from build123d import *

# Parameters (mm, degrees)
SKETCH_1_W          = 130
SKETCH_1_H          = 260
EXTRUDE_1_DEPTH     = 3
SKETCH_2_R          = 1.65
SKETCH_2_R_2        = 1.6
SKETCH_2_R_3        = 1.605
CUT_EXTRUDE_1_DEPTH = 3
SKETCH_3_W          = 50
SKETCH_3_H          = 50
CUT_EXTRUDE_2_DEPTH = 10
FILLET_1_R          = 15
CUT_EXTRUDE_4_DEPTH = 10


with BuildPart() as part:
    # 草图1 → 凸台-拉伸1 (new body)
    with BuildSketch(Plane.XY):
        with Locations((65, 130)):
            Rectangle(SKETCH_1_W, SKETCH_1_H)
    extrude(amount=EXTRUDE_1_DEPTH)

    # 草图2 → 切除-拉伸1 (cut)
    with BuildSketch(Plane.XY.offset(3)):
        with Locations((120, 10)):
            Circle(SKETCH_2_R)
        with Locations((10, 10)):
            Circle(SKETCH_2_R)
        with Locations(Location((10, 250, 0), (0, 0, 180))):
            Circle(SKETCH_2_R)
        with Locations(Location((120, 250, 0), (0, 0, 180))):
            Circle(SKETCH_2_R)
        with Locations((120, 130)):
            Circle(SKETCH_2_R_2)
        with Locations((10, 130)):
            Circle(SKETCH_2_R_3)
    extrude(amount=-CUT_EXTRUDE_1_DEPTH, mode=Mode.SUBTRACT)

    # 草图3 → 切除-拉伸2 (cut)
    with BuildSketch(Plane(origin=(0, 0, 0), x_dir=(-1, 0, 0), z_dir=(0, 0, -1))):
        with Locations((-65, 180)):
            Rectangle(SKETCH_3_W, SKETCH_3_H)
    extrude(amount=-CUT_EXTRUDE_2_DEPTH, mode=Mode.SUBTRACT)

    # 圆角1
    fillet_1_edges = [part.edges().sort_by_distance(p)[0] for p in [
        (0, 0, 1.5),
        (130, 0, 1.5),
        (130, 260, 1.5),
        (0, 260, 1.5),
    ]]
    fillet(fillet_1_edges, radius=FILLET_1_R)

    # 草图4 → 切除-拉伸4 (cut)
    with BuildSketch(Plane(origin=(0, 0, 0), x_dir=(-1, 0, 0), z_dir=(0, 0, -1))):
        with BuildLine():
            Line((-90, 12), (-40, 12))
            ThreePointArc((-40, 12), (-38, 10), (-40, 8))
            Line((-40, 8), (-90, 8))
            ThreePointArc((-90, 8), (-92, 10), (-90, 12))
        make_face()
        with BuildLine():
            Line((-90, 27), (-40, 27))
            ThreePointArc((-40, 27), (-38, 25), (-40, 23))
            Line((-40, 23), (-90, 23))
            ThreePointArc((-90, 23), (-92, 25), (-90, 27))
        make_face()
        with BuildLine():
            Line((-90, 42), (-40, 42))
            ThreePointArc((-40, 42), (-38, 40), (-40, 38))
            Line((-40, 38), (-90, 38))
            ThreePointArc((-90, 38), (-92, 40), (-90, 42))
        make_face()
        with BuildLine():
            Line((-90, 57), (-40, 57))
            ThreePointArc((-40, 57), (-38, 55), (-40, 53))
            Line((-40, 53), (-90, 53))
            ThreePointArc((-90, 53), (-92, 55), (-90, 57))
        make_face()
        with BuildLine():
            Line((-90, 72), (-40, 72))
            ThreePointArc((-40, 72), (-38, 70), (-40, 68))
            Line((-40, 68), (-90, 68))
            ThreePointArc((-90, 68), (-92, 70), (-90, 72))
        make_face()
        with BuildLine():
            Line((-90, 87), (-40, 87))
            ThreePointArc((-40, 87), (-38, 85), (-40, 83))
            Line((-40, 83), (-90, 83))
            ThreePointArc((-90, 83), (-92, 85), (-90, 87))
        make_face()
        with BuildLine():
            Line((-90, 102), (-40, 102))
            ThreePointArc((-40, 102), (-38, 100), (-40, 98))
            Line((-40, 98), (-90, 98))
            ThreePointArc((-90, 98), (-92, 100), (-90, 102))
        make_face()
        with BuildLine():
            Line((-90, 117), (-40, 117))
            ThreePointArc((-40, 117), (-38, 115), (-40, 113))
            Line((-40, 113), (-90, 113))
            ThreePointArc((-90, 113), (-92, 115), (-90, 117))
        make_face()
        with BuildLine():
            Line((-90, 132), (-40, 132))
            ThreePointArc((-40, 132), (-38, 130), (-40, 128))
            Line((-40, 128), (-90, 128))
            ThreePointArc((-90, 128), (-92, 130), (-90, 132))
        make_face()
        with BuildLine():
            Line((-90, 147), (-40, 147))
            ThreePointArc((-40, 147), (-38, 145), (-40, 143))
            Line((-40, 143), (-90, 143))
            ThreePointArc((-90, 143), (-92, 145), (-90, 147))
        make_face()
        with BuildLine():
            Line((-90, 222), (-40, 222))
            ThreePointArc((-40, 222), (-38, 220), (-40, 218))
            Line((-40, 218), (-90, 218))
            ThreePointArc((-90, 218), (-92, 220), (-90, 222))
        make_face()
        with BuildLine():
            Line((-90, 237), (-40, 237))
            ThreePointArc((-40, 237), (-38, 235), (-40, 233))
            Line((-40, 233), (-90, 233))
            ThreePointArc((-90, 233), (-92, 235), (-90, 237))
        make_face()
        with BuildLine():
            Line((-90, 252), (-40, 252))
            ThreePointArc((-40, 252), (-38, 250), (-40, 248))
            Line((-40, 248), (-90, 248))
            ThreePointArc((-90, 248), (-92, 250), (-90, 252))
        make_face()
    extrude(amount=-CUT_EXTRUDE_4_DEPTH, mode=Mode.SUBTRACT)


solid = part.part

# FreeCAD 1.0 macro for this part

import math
import FreeCAD as App
import Part
import Sketcher
from FreeCAD import Vector
Q = App.Units.Quantity


def edges_at(feature, points):
    """Names of the edges that pass closest to the given points."""
    edges = feature.Shape.Edges
    near = lambda p: min(range(len(edges)), key=lambda i: edges[i].distToShape(Part.Vertex(*p))[0])
    return sorted({f"Edge{near(p) + 1}" for p in points})

doc = App.newDocument("Part")
body = doc.addObject("PartDesign::Body", "Body")

# Sketch on XY plane
sketch1 = body.newObject("Sketcher::SketchObject", "Sketch")
sketch1.AttachmentSupport = (doc.getObject("XY_Plane"), [""])
sketch1.MapMode = "FlatFace"
sketch1.addGeometry([
    Part.LineSegment(Vector(0, 260, 0), Vector(0, 0, 0)),
    Part.LineSegment(Vector(0, 0, 0), Vector(130, 0, 0)),
    Part.LineSegment(Vector(130, 0, 0), Vector(130, 260, 0)),
    Part.LineSegment(Vector(130, 260, 0), Vector(0, 260, 0)),
], False)
sketch1.addConstraint([
    Sketcher.Constraint("Coincident", 0, 2, 1, 1),
    Sketcher.Constraint("Coincident", 1, 2, 2, 1),
    Sketcher.Constraint("Coincident", 2, 2, 3, 1),
    Sketcher.Constraint("Coincident", 3, 2, 0, 1),
    Sketcher.Constraint("Vertical", 0),
    Sketcher.Constraint("Horizontal", 1),
    Sketcher.Constraint("Vertical", 2),
    Sketcher.Constraint("Horizontal", 3),
    Sketcher.Constraint("Coincident", 0, 2, -1, 1),
    Sketcher.Constraint("DistanceX", 1, 1, 1, 2, Q("130 mm")),
    Sketcher.Constraint("DistanceY", 0, 2, 0, 1, Q("260 mm")),
])
pad1 = body.newObject("PartDesign::Pad", "Pad")
pad1.Profile = sketch1
pad1.Length = 3

# Sketch on XY plane
sketch2 = body.newObject("Sketcher::SketchObject", "Sketch001")
sketch2.AttachmentSupport = (doc.getObject("XY_Plane"), [""])
sketch2.MapMode = "FlatFace"
sketch2.AttachmentOffset = App.Placement(Vector(0, 0, 3), App.Rotation())
sketch2.addGeometry([
    Part.Circle(Vector(120, 10, 0), Vector(0, 0, 1), 1.6),  # 0
    Part.Circle(Vector(10, 10, 0), Vector(0, 0, 1), 1.6),  # 1
    Part.Circle(Vector(10, 250, 0), Vector(0, 0, 1), 1.6),  # 2
    Part.Circle(Vector(120, 250, 0), Vector(0, 0, 1), 1.6),  # 3
    Part.Circle(Vector(120, 130, 0), Vector(0, 0, 1), 1.6),  # 4
    Part.Circle(Vector(10, 130, 0), Vector(0, 0, 1), 1.6),  # 5
], False)
sketch2.addConstraint([
    Sketcher.Constraint("Equal", 0, 1),
    Sketcher.Constraint("Equal", 1, 2),
    Sketcher.Constraint("Equal", 2, 3),
    Sketcher.Constraint("Horizontal", 0, 3, 1, 3),
    Sketcher.Constraint("Horizontal", 2, 3, 3, 3),
    Sketcher.Constraint("Horizontal", 4, 3, 5, 3),
    Sketcher.Constraint("Vertical", 1, 3, 2, 3),
    Sketcher.Constraint("Vertical", 0, 3, 3, 3),
    Sketcher.Constraint("Vertical", 3, 3, 4, 3),
    Sketcher.Constraint("Vertical", 2, 3, 5, 3),
    Sketcher.Constraint("Diameter", 0, Q("3.3 mm")),
    Sketcher.Constraint("Diameter", 4, Q("3.2 mm")),
    Sketcher.Constraint("Diameter", 5, Q("3.21 mm")),
    Sketcher.Constraint("DistanceX", -1, 1, 0, 3, Q("120 mm")),
    Sketcher.Constraint("DistanceY", -1, 1, 0, 3, Q("10 mm")),
    Sketcher.Constraint("DistanceX", -1, 1, 1, 3, Q("10 mm")),
    Sketcher.Constraint("DistanceY", -1, 1, 2, 3, Q("250 mm")),
    Sketcher.Constraint("DistanceY", -1, 1, 4, 3, Q("130 mm")),
])
pocket1 = body.newObject("PartDesign::Pocket", "Pocket")
pocket1.Profile = sketch2
pocket1.Length = 3

# Sketch on XY plane
sketch3 = body.newObject("Sketcher::SketchObject", "Sketch002")
sketch3.AttachmentSupport = (doc.getObject("XY_Plane"), [""])
sketch3.MapMode = "FlatFace"
sketch3.addGeometry([
    Part.LineSegment(Vector(90, 205, 0), Vector(90, 155, 0)),
    Part.LineSegment(Vector(90, 155, 0), Vector(40, 155, 0)),
    Part.LineSegment(Vector(40, 155, 0), Vector(40, 205, 0)),
    Part.LineSegment(Vector(40, 205, 0), Vector(90, 205, 0)),
], False)
sketch3.addConstraint([
    Sketcher.Constraint("Coincident", 0, 2, 1, 1),
    Sketcher.Constraint("Coincident", 1, 2, 2, 1),
    Sketcher.Constraint("Coincident", 2, 2, 3, 1),
    Sketcher.Constraint("Coincident", 3, 2, 0, 1),
    Sketcher.Constraint("Vertical", 0),
    Sketcher.Constraint("Horizontal", 1),
    Sketcher.Constraint("Vertical", 2),
    Sketcher.Constraint("Horizontal", 3),
    Sketcher.Constraint("Equal", 3, 0),
    Sketcher.Constraint("DistanceX", 1, 2, 1, 1, Q("50 mm")),
    Sketcher.Constraint("DistanceX", -1, 1, 0, 2, Q("90 mm")),
    Sketcher.Constraint("DistanceY", -1, 1, 0, 2, Q("155 mm")),
])
pocket2 = body.newObject("PartDesign::Pocket", "Pocket001")
pocket2.Profile = sketch3
pocket2.Length = 10
pocket2.Reversed = True
doc.recompute()

fillet = body.newObject("PartDesign::Fillet", "Fillet")
fillet.Base = (pocket2, edges_at(pocket2, [
    (0, 0, 1.5),
    (130, 0, 1.5),
    (130, 260, 1.5),
    (0, 260, 1.5),
]))
fillet.Radius = 15

# Sketch on XY plane
sketch4 = body.newObject("Sketcher::SketchObject", "Sketch003")
sketch4.AttachmentSupport = (doc.getObject("XY_Plane"), [""])
sketch4.MapMode = "FlatFace"
sketch4.addGeometry([
    Part.LineSegment(Vector(40, 12, 0), Vector(90, 12, 0)),  # 0
    Part.ArcOfCircle(Part.Circle(Vector(90, 10, 0), Vector(0, 0, 1), 2), math.radians(-90), math.radians(90)),  # 1
    Part.LineSegment(Vector(90, 8, 0), Vector(40, 8, 0)),  # 2
    Part.ArcOfCircle(Part.Circle(Vector(40, 10, 0), Vector(0, 0, 1), 2), math.radians(90), math.radians(270)),  # 3
    Part.LineSegment(Vector(40, 27, 0), Vector(90, 27, 0)),  # 4
    Part.ArcOfCircle(Part.Circle(Vector(90, 25, 0), Vector(0, 0, 1), 2), math.radians(-90), math.radians(90)),  # 5
    Part.LineSegment(Vector(90, 23, 0), Vector(40, 23, 0)),  # 6
    Part.ArcOfCircle(Part.Circle(Vector(40, 25, 0), Vector(0, 0, 1), 2), math.radians(90), math.radians(270)),  # 7
    Part.LineSegment(Vector(40, 42, 0), Vector(90, 42, 0)),  # 8
    Part.ArcOfCircle(Part.Circle(Vector(90, 40, 0), Vector(0, 0, 1), 2), math.radians(-90), math.radians(90)),  # 9
    Part.LineSegment(Vector(90, 38, 0), Vector(40, 38, 0)),  # 10
    Part.ArcOfCircle(Part.Circle(Vector(40, 40, 0), Vector(0, 0, 1), 2), math.radians(90), math.radians(270)),  # 11
    Part.LineSegment(Vector(40, 57, 0), Vector(90, 57, 0)),  # 12
    Part.ArcOfCircle(Part.Circle(Vector(90, 55, 0), Vector(0, 0, 1), 2), math.radians(-90), math.radians(90)),  # 13
    Part.LineSegment(Vector(90, 53, 0), Vector(40, 53, 0)),  # 14
    Part.ArcOfCircle(Part.Circle(Vector(40, 55, 0), Vector(0, 0, 1), 2), math.radians(90), math.radians(270)),  # 15
    Part.LineSegment(Vector(40, 72, 0), Vector(90, 72, 0)),  # 16
    Part.ArcOfCircle(Part.Circle(Vector(90, 70, 0), Vector(0, 0, 1), 2), math.radians(-90), math.radians(90)),  # 17
    Part.LineSegment(Vector(90, 68, 0), Vector(40, 68, 0)),  # 18
    Part.ArcOfCircle(Part.Circle(Vector(40, 70, 0), Vector(0, 0, 1), 2), math.radians(90), math.radians(270)),  # 19
    Part.LineSegment(Vector(40, 87, 0), Vector(90, 87, 0)),  # 20
    Part.ArcOfCircle(Part.Circle(Vector(90, 85, 0), Vector(0, 0, 1), 2), math.radians(-90), math.radians(90)),  # 21
    Part.LineSegment(Vector(90, 83, 0), Vector(40, 83, 0)),  # 22
    Part.ArcOfCircle(Part.Circle(Vector(40, 85, 0), Vector(0, 0, 1), 2), math.radians(90), math.radians(270)),  # 23
    Part.LineSegment(Vector(40, 102, 0), Vector(90, 102, 0)),  # 24
    Part.ArcOfCircle(Part.Circle(Vector(90, 100, 0), Vector(0, 0, 1), 2), math.radians(-90), math.radians(90)),  # 25
    Part.LineSegment(Vector(90, 98, 0), Vector(40, 98, 0)),  # 26
    Part.ArcOfCircle(Part.Circle(Vector(40, 100, 0), Vector(0, 0, 1), 2), math.radians(90), math.radians(270)),  # 27
    Part.LineSegment(Vector(40, 117, 0), Vector(90, 117, 0)),  # 28
    Part.ArcOfCircle(Part.Circle(Vector(90, 115, 0), Vector(0, 0, 1), 2), math.radians(-90), math.radians(90)),  # 29
    Part.LineSegment(Vector(90, 113, 0), Vector(40, 113, 0)),  # 30
    Part.ArcOfCircle(Part.Circle(Vector(40, 115, 0), Vector(0, 0, 1), 2), math.radians(90), math.radians(270)),  # 31
    Part.LineSegment(Vector(40, 132, 0), Vector(90, 132, 0)),  # 32
    Part.ArcOfCircle(Part.Circle(Vector(90, 130, 0), Vector(0, 0, 1), 2), math.radians(-90), math.radians(90)),  # 33
    Part.LineSegment(Vector(90, 128, 0), Vector(40, 128, 0)),  # 34
    Part.ArcOfCircle(Part.Circle(Vector(40, 130, 0), Vector(0, 0, 1), 2), math.radians(90), math.radians(270)),  # 35
    Part.LineSegment(Vector(40, 147, 0), Vector(90, 147, 0)),  # 36
    Part.ArcOfCircle(Part.Circle(Vector(90, 145, 0), Vector(0, 0, 1), 2), math.radians(-90), math.radians(90)),  # 37
    Part.LineSegment(Vector(90, 143, 0), Vector(40, 143, 0)),  # 38
    Part.ArcOfCircle(Part.Circle(Vector(40, 145, 0), Vector(0, 0, 1), 2), math.radians(90), math.radians(270)),  # 39
    Part.LineSegment(Vector(40, 222, 0), Vector(90, 222, 0)),  # 40
    Part.ArcOfCircle(Part.Circle(Vector(90, 220, 0), Vector(0, 0, 1), 2), math.radians(-90), math.radians(90)),  # 41
    Part.LineSegment(Vector(90, 218, 0), Vector(40, 218, 0)),  # 42
    Part.ArcOfCircle(Part.Circle(Vector(40, 220, 0), Vector(0, 0, 1), 2), math.radians(90), math.radians(270)),  # 43
    Part.LineSegment(Vector(40, 237, 0), Vector(90, 237, 0)),  # 44
    Part.ArcOfCircle(Part.Circle(Vector(90, 235, 0), Vector(0, 0, 1), 2), math.radians(-90), math.radians(90)),  # 45
    Part.LineSegment(Vector(90, 233, 0), Vector(40, 233, 0)),  # 46
    Part.ArcOfCircle(Part.Circle(Vector(40, 235, 0), Vector(0, 0, 1), 2), math.radians(90), math.radians(270)),  # 47
    Part.LineSegment(Vector(40, 252, 0), Vector(90, 252, 0)),  # 48
    Part.ArcOfCircle(Part.Circle(Vector(90, 250, 0), Vector(0, 0, 1), 2), math.radians(-90), math.radians(90)),  # 49
    Part.LineSegment(Vector(90, 248, 0), Vector(40, 248, 0)),  # 50
    Part.ArcOfCircle(Part.Circle(Vector(40, 250, 0), Vector(0, 0, 1), 2), math.radians(90), math.radians(270)),  # 51
], False)
sketch4.addConstraint([
    Sketcher.Constraint("Tangent", 0, 2, 1, 2),
    Sketcher.Constraint("Tangent", 1, 1, 2, 1),
    Sketcher.Constraint("Tangent", 2, 2, 3, 2),
    Sketcher.Constraint("Tangent", 3, 1, 0, 1),
    Sketcher.Constraint("Tangent", 4, 2, 5, 2),
    Sketcher.Constraint("Tangent", 5, 1, 6, 1),
    Sketcher.Constraint("Tangent", 6, 2, 7, 2),
    Sketcher.Constraint("Tangent", 7, 1, 4, 1),
    Sketcher.Constraint("Tangent", 8, 2, 9, 2),
    Sketcher.Constraint("Tangent", 9, 1, 10, 1),
    Sketcher.Constraint("Tangent", 10, 2, 11, 2),
    Sketcher.Constraint("Tangent", 11, 1, 8, 1),
    Sketcher.Constraint("Tangent", 12, 2, 13, 2),
    Sketcher.Constraint("Tangent", 13, 1, 14, 1),
    Sketcher.Constraint("Tangent", 14, 2, 15, 2),
    Sketcher.Constraint("Tangent", 15, 1, 12, 1),
    Sketcher.Constraint("Tangent", 16, 2, 17, 2),
    Sketcher.Constraint("Tangent", 17, 1, 18, 1),
    Sketcher.Constraint("Tangent", 18, 2, 19, 2),
    Sketcher.Constraint("Tangent", 19, 1, 16, 1),
    Sketcher.Constraint("Tangent", 20, 2, 21, 2),
    Sketcher.Constraint("Tangent", 21, 1, 22, 1),
    Sketcher.Constraint("Tangent", 22, 2, 23, 2),
    Sketcher.Constraint("Tangent", 23, 1, 20, 1),
    Sketcher.Constraint("Tangent", 24, 2, 25, 2),
    Sketcher.Constraint("Tangent", 25, 1, 26, 1),
    Sketcher.Constraint("Tangent", 26, 2, 27, 2),
    Sketcher.Constraint("Tangent", 27, 1, 24, 1),
    Sketcher.Constraint("Tangent", 28, 2, 29, 2),
    Sketcher.Constraint("Tangent", 29, 1, 30, 1),
    Sketcher.Constraint("Tangent", 30, 2, 31, 2),
    Sketcher.Constraint("Tangent", 31, 1, 28, 1),
    Sketcher.Constraint("Tangent", 32, 2, 33, 2),
    Sketcher.Constraint("Tangent", 33, 1, 34, 1),
    Sketcher.Constraint("Tangent", 34, 2, 35, 2),
    Sketcher.Constraint("Tangent", 35, 1, 32, 1),
    Sketcher.Constraint("Tangent", 36, 2, 37, 2),
    Sketcher.Constraint("Tangent", 37, 1, 38, 1),
    Sketcher.Constraint("Tangent", 38, 2, 39, 2),
    Sketcher.Constraint("Tangent", 39, 1, 36, 1),
    Sketcher.Constraint("Tangent", 40, 2, 41, 2),
    Sketcher.Constraint("Tangent", 41, 1, 42, 1),
    Sketcher.Constraint("Tangent", 42, 2, 43, 2),
    Sketcher.Constraint("Tangent", 43, 1, 40, 1),
    Sketcher.Constraint("Tangent", 44, 2, 45, 2),
    Sketcher.Constraint("Tangent", 45, 1, 46, 1),
    Sketcher.Constraint("Tangent", 46, 2, 47, 2),
    Sketcher.Constraint("Tangent", 47, 1, 44, 1),
    Sketcher.Constraint("Tangent", 48, 2, 49, 2),
    Sketcher.Constraint("Tangent", 49, 1, 50, 1),
    Sketcher.Constraint("Tangent", 50, 2, 51, 2),
    Sketcher.Constraint("Tangent", 51, 1, 48, 1),
    Sketcher.Constraint("Horizontal", 0),
    Sketcher.Constraint("Horizontal", 2),
    Sketcher.Constraint("Horizontal", 4),
    Sketcher.Constraint("Horizontal", 6),
    Sketcher.Constraint("Horizontal", 8),
    Sketcher.Constraint("Horizontal", 10),
    Sketcher.Constraint("Horizontal", 12),
    Sketcher.Constraint("Horizontal", 14),
    Sketcher.Constraint("Horizontal", 16),
    Sketcher.Constraint("Horizontal", 18),
    Sketcher.Constraint("Horizontal", 20),
    Sketcher.Constraint("Horizontal", 22),
    Sketcher.Constraint("Horizontal", 24),
    Sketcher.Constraint("Horizontal", 26),
    Sketcher.Constraint("Horizontal", 28),
    Sketcher.Constraint("Horizontal", 30),
    Sketcher.Constraint("Horizontal", 32),
    Sketcher.Constraint("Horizontal", 34),
    Sketcher.Constraint("Horizontal", 36),
    Sketcher.Constraint("Horizontal", 38),
    Sketcher.Constraint("Horizontal", 40),
    Sketcher.Constraint("Horizontal", 42),
    Sketcher.Constraint("Horizontal", 44),
    Sketcher.Constraint("Horizontal", 46),
    Sketcher.Constraint("Horizontal", 48),
    Sketcher.Constraint("Horizontal", 50),
    Sketcher.Constraint("Equal", 3, 5),
    Sketcher.Constraint("Equal", 7, 9),
    Sketcher.Constraint("Equal", 11, 13),
    Sketcher.Constraint("Equal", 15, 17),
    Sketcher.Constraint("Equal", 19, 21),
    Sketcher.Constraint("Equal", 23, 25),
    Sketcher.Constraint("Equal", 27, 29),
    Sketcher.Constraint("Equal", 31, 33),
    Sketcher.Constraint("Equal", 35, 37),
    Sketcher.Constraint("Equal", 39, 41),
    Sketcher.Constraint("Equal", 43, 45),
    Sketcher.Constraint("Equal", 47, 49),
    Sketcher.Constraint("Vertical", 1, 3, 5, 3),
    Sketcher.Constraint("Vertical", 3, 3, 7, 3),
    Sketcher.Constraint("Vertical", 5, 3, 9, 3),
    Sketcher.Constraint("Vertical", 7, 3, 11, 3),
    Sketcher.Constraint("Vertical", 9, 3, 13, 3),
    Sketcher.Constraint("Vertical", 11, 3, 15, 3),
    Sketcher.Constraint("Vertical", 13, 3, 17, 3),
    Sketcher.Constraint("Vertical", 15, 3, 19, 3),
    Sketcher.Constraint("Vertical", 17, 3, 21, 3),
    Sketcher.Constraint("Vertical", 19, 3, 23, 3),
    Sketcher.Constraint("Vertical", 21, 3, 25, 3),
    Sketcher.Constraint("Vertical", 23, 3, 27, 3),
    Sketcher.Constraint("Vertical", 25, 3, 29, 3),
    Sketcher.Constraint("Vertical", 27, 3, 31, 3),
    Sketcher.Constraint("Vertical", 29, 3, 33, 3),
    Sketcher.Constraint("Vertical", 31, 3, 35, 3),
    Sketcher.Constraint("Vertical", 33, 3, 37, 3),
    Sketcher.Constraint("Vertical", 35, 3, 39, 3),
    Sketcher.Constraint("Vertical", 37, 3, 41, 3),
    Sketcher.Constraint("Vertical", 39, 3, 43, 3),
    Sketcher.Constraint("Vertical", 41, 3, 45, 3),
    Sketcher.Constraint("Vertical", 43, 3, 47, 3),
    Sketcher.Constraint("Vertical", 45, 3, 49, 3),
    Sketcher.Constraint("Vertical", 47, 3, 51, 3),
    Sketcher.Constraint("Radius", 1, Q("2 mm")),
    Sketcher.Constraint("DistanceX", 0, 1, 0, 2, Q("50 mm")),
    Sketcher.Constraint("DistanceX", -1, 1, 1, 3, Q("90 mm")),
    Sketcher.Constraint("DistanceY", -1, 1, 1, 3, Q("10 mm")),
    Sketcher.Constraint("DistanceY", -1, 1, 5, 3, Q("25 mm")),
    Sketcher.Constraint("DistanceY", -1, 1, 9, 3, Q("40 mm")),
    Sketcher.Constraint("DistanceY", -1, 1, 13, 3, Q("55 mm")),
    Sketcher.Constraint("DistanceY", -1, 1, 17, 3, Q("70 mm")),
    Sketcher.Constraint("DistanceY", -1, 1, 21, 3, Q("85 mm")),
    Sketcher.Constraint("DistanceY", -1, 1, 25, 3, Q("100 mm")),
    Sketcher.Constraint("DistanceY", -1, 1, 29, 3, Q("115 mm")),
    Sketcher.Constraint("DistanceY", -1, 1, 33, 3, Q("130 mm")),
    Sketcher.Constraint("DistanceY", -1, 1, 37, 3, Q("145 mm")),
    Sketcher.Constraint("DistanceY", -1, 1, 41, 3, Q("220 mm")),
    Sketcher.Constraint("DistanceY", -1, 1, 45, 3, Q("235 mm")),
    Sketcher.Constraint("DistanceY", -1, 1, 49, 3, Q("250 mm")),
])
pocket3 = body.newObject("PartDesign::Pocket", "Pocket002")
pocket3.Profile = sketch4
pocket3.Length = 10
pocket3.Reversed = True

doc.recompute()
